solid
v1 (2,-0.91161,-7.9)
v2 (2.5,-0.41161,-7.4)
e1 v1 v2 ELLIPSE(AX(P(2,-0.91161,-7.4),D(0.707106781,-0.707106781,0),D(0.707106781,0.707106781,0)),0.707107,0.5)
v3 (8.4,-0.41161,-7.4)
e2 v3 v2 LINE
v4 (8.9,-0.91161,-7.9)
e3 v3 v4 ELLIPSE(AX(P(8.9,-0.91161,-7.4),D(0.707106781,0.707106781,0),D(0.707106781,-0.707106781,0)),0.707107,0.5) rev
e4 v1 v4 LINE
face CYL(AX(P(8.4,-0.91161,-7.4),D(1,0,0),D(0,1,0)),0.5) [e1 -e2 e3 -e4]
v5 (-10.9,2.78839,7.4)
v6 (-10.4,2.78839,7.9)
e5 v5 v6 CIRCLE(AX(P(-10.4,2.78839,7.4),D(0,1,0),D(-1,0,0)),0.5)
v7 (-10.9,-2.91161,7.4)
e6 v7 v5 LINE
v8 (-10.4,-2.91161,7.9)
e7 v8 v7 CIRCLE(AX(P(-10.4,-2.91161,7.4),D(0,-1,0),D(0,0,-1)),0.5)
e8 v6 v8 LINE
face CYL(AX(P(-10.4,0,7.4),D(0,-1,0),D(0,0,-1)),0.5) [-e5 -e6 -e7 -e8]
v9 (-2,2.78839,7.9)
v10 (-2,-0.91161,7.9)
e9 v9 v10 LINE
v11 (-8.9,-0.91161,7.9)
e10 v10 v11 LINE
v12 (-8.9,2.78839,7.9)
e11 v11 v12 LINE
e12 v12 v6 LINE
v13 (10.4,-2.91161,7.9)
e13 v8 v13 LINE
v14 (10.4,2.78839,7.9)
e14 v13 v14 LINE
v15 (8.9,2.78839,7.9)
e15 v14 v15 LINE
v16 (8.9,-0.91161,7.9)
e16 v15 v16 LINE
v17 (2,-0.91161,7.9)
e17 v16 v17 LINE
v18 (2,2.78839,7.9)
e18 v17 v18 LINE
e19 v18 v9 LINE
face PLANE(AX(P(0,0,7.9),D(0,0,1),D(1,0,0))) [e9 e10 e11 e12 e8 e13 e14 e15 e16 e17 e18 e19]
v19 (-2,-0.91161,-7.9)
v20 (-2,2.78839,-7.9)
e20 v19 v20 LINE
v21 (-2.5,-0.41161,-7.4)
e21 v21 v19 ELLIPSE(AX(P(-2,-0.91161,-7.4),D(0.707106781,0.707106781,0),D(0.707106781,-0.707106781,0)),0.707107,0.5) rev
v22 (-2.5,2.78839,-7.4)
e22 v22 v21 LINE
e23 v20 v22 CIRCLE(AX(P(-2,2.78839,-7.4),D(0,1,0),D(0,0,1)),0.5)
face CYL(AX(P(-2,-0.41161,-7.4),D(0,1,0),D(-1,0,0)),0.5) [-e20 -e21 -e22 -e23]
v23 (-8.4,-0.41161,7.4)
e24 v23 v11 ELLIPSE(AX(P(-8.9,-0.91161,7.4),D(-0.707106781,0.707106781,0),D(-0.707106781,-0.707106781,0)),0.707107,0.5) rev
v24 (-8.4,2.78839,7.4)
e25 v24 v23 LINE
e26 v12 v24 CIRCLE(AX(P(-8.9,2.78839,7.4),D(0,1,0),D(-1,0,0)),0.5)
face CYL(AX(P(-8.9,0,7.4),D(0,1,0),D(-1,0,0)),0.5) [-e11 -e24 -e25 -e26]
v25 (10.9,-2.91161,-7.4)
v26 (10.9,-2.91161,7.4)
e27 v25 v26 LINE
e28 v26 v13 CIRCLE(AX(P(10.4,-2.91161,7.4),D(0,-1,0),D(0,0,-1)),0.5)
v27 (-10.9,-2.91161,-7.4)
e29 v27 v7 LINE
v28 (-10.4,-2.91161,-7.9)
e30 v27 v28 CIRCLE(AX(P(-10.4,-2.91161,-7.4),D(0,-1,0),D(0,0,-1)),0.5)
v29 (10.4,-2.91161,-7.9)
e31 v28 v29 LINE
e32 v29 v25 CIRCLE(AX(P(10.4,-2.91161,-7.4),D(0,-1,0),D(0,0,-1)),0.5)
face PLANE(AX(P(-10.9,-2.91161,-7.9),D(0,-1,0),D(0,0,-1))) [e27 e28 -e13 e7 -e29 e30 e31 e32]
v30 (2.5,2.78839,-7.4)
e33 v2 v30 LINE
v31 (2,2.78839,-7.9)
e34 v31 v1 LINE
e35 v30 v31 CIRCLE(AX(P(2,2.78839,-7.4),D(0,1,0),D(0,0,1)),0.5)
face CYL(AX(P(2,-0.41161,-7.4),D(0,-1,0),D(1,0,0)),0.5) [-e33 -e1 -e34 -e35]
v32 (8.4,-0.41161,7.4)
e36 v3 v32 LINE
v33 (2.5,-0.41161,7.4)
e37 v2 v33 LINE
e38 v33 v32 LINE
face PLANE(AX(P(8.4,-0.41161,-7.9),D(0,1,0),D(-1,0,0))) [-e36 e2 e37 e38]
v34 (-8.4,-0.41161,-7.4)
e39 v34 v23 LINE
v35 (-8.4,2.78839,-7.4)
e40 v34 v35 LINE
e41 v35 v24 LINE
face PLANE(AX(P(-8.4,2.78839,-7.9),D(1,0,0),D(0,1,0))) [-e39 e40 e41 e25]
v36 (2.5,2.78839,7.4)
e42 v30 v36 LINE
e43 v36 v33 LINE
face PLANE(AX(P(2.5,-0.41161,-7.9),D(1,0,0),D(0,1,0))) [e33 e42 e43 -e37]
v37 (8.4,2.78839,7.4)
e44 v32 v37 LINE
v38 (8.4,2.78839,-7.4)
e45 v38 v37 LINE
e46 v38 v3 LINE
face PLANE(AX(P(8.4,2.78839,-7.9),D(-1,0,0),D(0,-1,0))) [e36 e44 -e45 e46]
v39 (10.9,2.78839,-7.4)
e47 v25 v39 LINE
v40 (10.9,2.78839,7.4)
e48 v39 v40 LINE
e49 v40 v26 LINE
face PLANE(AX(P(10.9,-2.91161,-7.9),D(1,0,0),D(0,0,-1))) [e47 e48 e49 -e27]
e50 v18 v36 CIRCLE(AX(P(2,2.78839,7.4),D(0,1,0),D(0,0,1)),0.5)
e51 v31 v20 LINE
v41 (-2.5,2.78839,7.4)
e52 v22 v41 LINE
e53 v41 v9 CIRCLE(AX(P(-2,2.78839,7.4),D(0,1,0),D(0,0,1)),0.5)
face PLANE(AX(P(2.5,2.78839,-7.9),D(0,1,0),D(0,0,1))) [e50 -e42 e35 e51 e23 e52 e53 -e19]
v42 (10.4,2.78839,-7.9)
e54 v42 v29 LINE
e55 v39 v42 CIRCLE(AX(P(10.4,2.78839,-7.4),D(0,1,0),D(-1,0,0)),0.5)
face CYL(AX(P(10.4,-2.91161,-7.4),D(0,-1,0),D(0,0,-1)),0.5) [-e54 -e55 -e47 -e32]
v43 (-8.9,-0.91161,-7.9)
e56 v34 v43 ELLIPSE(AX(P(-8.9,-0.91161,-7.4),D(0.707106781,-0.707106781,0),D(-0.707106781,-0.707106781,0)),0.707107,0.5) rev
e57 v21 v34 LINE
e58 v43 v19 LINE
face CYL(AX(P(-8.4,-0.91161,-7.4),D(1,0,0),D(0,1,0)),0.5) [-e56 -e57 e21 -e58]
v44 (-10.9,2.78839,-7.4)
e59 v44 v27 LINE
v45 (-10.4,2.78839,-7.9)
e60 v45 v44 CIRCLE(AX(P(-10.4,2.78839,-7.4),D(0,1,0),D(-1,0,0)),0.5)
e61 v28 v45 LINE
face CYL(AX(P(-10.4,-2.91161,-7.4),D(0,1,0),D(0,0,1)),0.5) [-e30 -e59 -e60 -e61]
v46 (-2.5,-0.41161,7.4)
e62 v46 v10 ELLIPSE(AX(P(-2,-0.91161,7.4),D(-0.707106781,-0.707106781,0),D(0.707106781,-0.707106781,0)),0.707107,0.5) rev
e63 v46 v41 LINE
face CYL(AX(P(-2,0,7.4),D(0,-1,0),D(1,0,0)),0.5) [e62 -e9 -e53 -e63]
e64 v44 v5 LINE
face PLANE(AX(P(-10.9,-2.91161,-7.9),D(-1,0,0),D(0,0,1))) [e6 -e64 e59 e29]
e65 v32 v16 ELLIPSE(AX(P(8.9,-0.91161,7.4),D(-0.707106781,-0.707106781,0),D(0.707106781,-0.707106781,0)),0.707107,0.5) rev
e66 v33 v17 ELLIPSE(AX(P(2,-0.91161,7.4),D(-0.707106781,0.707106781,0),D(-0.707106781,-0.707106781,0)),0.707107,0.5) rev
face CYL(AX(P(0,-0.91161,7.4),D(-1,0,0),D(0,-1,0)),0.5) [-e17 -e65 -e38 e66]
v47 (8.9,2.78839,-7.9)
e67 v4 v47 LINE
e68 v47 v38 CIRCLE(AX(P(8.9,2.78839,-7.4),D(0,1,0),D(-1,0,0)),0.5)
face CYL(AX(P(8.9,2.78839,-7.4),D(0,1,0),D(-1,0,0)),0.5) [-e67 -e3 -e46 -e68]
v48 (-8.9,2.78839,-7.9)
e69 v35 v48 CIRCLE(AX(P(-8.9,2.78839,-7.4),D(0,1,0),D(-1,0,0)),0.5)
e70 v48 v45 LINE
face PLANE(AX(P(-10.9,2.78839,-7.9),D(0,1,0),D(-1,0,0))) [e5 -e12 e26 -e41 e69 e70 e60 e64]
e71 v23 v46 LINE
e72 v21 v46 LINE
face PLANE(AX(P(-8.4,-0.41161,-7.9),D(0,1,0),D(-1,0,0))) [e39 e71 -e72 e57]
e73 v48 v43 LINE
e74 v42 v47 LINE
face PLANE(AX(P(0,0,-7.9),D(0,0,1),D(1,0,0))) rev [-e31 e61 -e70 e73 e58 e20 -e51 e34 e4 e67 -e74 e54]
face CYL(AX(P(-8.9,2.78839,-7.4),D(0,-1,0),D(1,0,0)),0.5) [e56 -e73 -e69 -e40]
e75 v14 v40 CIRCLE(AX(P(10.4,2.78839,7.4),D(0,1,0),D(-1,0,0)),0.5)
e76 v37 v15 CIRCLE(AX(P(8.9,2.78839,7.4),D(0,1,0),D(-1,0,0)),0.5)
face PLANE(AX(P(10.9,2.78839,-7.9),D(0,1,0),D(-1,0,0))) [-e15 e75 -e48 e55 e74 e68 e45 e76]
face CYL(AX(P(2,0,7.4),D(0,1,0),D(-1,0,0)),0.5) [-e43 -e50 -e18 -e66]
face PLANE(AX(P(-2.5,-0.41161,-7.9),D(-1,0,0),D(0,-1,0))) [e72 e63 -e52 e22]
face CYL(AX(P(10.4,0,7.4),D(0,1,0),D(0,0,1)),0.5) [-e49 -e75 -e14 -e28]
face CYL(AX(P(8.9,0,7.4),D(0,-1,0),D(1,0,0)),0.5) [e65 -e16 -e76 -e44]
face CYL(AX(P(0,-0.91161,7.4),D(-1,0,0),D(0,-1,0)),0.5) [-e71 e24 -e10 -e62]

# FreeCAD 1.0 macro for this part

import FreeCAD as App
import Part
import Sketcher
from FreeCAD import Vector


def edges_at(feature, points):
    """Names of the edges that pass closest to the given points."""
    edges = feature.Shape.Edges
    near = lambda p: min(range(len(edges)), key=lambda i: edges[i].distToShape(Part.Vertex(*p))[0])
    return sorted({f"Edge{near(p) + 1}" for p in points})


def add_polygon(sketch, points):
    """Adds a closed chain of lines whose ends are joined by coincident constraints."""
    first, n = sketch.GeometryCount, len(points)
    for a, b in zip(points, points[1:] + points[:1]):
        sketch.addGeometry(Part.LineSegment(App.Vector(*a, 0), App.Vector(*b, 0)), False)
    for i in range(n):
        sketch.addConstraint(Sketcher.Constraint("Coincident", first + i, 2, first + (i + 1) % n, 1))

doc = App.newDocument("Part")
body = doc.addObject("PartDesign::Body", "Body")

# Sketch on XY plane
sketch1 = doc.addObject("Sketcher::SketchObject", "Sketch")
body.addObject(sketch1)
sketch1.AttachmentSupport = (doc.XY_Plane, [""])
sketch1.MapMode = "FlatFace"
add_polygon(sketch1, [(-10.9, -2.91161), (10.9, -2.91161), (10.9, 2.78839), (8.4, 2.78839), (8.4, -0.41161), (2.5, -0.41161), (2.5, 2.78839), (-2.5, 2.78839), (-2.5, -0.41161), (-8.4, -0.41161), (-8.4, 2.78839), (-10.9, 2.78839)])  # lines 0-11
sketch1.addConstraint(Sketcher.Constraint("Horizontal", 0))
sketch1.addConstraint(Sketcher.Constraint("Vertical", 1))
sketch1.addConstraint(Sketcher.Constraint("Horizontal", 2))
sketch1.addConstraint(Sketcher.Constraint("Vertical", 3))
sketch1.addConstraint(Sketcher.Constraint("Horizontal", 4))
sketch1.addConstraint(Sketcher.Constraint("Vertical", 5))
sketch1.addConstraint(Sketcher.Constraint("Horizontal", 6))
sketch1.addConstraint(Sketcher.Constraint("Vertical", 7))
sketch1.addConstraint(Sketcher.Constraint("Horizontal", 8))
sketch1.addConstraint(Sketcher.Constraint("Vertical", 9))
sketch1.addConstraint(Sketcher.Constraint("Horizontal", 10))
sketch1.addConstraint(Sketcher.Constraint("Vertical", 11))
sketch1.addConstraint(Sketcher.Constraint("Symmetric", 4, 2, 7, 2, -2))
sketch1.addConstraint(Sketcher.Constraint("Symmetric", 2, 2, 9, 2, -2))
sketch1.addConstraint(Sketcher.Constraint("Horizontal", 2, 2, 5, 2))
sketch1.addConstraint(Sketcher.Constraint("Equal", 2, 10))
sketch1.addConstraint(Sketcher.Constraint("DistanceX", 6, 2, 6, 1, 5.0))
sketch1.addConstraint(Sketcher.Constraint("DistanceX", 0, 1, 0, 2, 21.8))
sketch1.addConstraint(Sketcher.Constraint("DistanceX", 2, 2, 2, 1, 2.5))
sketch1.addConstraint(Sketcher.Constraint("DistanceY", 1, 1, 1, 2, 5.7))
sketch1.addConstraint(Sketcher.Constraint("DistanceY", 3, 2, 3, 1, 3.2))
sketch1.addConstraint(Sketcher.Constraint("DistanceY", 0, 2, -1, 1, 2.91161))
pad1 = doc.addObject("PartDesign::Pad", "Pad")
body.addObject(pad1)
pad1.Profile = sketch1
pad1.Type = "TwoLengths"
pad1.Length = 7.9
pad1.Length2 = 7.9
doc.recompute()

fillet = doc.addObject("PartDesign::Fillet", "Fillet")
body.addObject(fillet)
fillet.Base = (pad1, edges_at(pad1, [
    (-10.9, -0.062, -7.9),
    (10.9, -0.062, -7.9),
    (8.4, 1.188, -7.9),
    (5.45, -0.412, -7.9),
    (2.5, 1.188, -7.9),
    (-5.45, -0.412, 7.9),
    (-8.4, 1.188, 7.9),
    (-10.9, -0.062, 7.9),
    (10.9, -0.062, 7.9),
    (8.4, 1.188, 7.9),
    (5.45, -0.412, 7.9),
    (2.5, 1.188, 7.9),
    (-2.5, 1.188, 7.9),
    (-2.5, 1.188, -7.9),
    (-5.45, -0.412, -7.9),
    (-8.4, 1.188, -7.9),
]))
fillet.Radius = 0.5

doc.recompute()
